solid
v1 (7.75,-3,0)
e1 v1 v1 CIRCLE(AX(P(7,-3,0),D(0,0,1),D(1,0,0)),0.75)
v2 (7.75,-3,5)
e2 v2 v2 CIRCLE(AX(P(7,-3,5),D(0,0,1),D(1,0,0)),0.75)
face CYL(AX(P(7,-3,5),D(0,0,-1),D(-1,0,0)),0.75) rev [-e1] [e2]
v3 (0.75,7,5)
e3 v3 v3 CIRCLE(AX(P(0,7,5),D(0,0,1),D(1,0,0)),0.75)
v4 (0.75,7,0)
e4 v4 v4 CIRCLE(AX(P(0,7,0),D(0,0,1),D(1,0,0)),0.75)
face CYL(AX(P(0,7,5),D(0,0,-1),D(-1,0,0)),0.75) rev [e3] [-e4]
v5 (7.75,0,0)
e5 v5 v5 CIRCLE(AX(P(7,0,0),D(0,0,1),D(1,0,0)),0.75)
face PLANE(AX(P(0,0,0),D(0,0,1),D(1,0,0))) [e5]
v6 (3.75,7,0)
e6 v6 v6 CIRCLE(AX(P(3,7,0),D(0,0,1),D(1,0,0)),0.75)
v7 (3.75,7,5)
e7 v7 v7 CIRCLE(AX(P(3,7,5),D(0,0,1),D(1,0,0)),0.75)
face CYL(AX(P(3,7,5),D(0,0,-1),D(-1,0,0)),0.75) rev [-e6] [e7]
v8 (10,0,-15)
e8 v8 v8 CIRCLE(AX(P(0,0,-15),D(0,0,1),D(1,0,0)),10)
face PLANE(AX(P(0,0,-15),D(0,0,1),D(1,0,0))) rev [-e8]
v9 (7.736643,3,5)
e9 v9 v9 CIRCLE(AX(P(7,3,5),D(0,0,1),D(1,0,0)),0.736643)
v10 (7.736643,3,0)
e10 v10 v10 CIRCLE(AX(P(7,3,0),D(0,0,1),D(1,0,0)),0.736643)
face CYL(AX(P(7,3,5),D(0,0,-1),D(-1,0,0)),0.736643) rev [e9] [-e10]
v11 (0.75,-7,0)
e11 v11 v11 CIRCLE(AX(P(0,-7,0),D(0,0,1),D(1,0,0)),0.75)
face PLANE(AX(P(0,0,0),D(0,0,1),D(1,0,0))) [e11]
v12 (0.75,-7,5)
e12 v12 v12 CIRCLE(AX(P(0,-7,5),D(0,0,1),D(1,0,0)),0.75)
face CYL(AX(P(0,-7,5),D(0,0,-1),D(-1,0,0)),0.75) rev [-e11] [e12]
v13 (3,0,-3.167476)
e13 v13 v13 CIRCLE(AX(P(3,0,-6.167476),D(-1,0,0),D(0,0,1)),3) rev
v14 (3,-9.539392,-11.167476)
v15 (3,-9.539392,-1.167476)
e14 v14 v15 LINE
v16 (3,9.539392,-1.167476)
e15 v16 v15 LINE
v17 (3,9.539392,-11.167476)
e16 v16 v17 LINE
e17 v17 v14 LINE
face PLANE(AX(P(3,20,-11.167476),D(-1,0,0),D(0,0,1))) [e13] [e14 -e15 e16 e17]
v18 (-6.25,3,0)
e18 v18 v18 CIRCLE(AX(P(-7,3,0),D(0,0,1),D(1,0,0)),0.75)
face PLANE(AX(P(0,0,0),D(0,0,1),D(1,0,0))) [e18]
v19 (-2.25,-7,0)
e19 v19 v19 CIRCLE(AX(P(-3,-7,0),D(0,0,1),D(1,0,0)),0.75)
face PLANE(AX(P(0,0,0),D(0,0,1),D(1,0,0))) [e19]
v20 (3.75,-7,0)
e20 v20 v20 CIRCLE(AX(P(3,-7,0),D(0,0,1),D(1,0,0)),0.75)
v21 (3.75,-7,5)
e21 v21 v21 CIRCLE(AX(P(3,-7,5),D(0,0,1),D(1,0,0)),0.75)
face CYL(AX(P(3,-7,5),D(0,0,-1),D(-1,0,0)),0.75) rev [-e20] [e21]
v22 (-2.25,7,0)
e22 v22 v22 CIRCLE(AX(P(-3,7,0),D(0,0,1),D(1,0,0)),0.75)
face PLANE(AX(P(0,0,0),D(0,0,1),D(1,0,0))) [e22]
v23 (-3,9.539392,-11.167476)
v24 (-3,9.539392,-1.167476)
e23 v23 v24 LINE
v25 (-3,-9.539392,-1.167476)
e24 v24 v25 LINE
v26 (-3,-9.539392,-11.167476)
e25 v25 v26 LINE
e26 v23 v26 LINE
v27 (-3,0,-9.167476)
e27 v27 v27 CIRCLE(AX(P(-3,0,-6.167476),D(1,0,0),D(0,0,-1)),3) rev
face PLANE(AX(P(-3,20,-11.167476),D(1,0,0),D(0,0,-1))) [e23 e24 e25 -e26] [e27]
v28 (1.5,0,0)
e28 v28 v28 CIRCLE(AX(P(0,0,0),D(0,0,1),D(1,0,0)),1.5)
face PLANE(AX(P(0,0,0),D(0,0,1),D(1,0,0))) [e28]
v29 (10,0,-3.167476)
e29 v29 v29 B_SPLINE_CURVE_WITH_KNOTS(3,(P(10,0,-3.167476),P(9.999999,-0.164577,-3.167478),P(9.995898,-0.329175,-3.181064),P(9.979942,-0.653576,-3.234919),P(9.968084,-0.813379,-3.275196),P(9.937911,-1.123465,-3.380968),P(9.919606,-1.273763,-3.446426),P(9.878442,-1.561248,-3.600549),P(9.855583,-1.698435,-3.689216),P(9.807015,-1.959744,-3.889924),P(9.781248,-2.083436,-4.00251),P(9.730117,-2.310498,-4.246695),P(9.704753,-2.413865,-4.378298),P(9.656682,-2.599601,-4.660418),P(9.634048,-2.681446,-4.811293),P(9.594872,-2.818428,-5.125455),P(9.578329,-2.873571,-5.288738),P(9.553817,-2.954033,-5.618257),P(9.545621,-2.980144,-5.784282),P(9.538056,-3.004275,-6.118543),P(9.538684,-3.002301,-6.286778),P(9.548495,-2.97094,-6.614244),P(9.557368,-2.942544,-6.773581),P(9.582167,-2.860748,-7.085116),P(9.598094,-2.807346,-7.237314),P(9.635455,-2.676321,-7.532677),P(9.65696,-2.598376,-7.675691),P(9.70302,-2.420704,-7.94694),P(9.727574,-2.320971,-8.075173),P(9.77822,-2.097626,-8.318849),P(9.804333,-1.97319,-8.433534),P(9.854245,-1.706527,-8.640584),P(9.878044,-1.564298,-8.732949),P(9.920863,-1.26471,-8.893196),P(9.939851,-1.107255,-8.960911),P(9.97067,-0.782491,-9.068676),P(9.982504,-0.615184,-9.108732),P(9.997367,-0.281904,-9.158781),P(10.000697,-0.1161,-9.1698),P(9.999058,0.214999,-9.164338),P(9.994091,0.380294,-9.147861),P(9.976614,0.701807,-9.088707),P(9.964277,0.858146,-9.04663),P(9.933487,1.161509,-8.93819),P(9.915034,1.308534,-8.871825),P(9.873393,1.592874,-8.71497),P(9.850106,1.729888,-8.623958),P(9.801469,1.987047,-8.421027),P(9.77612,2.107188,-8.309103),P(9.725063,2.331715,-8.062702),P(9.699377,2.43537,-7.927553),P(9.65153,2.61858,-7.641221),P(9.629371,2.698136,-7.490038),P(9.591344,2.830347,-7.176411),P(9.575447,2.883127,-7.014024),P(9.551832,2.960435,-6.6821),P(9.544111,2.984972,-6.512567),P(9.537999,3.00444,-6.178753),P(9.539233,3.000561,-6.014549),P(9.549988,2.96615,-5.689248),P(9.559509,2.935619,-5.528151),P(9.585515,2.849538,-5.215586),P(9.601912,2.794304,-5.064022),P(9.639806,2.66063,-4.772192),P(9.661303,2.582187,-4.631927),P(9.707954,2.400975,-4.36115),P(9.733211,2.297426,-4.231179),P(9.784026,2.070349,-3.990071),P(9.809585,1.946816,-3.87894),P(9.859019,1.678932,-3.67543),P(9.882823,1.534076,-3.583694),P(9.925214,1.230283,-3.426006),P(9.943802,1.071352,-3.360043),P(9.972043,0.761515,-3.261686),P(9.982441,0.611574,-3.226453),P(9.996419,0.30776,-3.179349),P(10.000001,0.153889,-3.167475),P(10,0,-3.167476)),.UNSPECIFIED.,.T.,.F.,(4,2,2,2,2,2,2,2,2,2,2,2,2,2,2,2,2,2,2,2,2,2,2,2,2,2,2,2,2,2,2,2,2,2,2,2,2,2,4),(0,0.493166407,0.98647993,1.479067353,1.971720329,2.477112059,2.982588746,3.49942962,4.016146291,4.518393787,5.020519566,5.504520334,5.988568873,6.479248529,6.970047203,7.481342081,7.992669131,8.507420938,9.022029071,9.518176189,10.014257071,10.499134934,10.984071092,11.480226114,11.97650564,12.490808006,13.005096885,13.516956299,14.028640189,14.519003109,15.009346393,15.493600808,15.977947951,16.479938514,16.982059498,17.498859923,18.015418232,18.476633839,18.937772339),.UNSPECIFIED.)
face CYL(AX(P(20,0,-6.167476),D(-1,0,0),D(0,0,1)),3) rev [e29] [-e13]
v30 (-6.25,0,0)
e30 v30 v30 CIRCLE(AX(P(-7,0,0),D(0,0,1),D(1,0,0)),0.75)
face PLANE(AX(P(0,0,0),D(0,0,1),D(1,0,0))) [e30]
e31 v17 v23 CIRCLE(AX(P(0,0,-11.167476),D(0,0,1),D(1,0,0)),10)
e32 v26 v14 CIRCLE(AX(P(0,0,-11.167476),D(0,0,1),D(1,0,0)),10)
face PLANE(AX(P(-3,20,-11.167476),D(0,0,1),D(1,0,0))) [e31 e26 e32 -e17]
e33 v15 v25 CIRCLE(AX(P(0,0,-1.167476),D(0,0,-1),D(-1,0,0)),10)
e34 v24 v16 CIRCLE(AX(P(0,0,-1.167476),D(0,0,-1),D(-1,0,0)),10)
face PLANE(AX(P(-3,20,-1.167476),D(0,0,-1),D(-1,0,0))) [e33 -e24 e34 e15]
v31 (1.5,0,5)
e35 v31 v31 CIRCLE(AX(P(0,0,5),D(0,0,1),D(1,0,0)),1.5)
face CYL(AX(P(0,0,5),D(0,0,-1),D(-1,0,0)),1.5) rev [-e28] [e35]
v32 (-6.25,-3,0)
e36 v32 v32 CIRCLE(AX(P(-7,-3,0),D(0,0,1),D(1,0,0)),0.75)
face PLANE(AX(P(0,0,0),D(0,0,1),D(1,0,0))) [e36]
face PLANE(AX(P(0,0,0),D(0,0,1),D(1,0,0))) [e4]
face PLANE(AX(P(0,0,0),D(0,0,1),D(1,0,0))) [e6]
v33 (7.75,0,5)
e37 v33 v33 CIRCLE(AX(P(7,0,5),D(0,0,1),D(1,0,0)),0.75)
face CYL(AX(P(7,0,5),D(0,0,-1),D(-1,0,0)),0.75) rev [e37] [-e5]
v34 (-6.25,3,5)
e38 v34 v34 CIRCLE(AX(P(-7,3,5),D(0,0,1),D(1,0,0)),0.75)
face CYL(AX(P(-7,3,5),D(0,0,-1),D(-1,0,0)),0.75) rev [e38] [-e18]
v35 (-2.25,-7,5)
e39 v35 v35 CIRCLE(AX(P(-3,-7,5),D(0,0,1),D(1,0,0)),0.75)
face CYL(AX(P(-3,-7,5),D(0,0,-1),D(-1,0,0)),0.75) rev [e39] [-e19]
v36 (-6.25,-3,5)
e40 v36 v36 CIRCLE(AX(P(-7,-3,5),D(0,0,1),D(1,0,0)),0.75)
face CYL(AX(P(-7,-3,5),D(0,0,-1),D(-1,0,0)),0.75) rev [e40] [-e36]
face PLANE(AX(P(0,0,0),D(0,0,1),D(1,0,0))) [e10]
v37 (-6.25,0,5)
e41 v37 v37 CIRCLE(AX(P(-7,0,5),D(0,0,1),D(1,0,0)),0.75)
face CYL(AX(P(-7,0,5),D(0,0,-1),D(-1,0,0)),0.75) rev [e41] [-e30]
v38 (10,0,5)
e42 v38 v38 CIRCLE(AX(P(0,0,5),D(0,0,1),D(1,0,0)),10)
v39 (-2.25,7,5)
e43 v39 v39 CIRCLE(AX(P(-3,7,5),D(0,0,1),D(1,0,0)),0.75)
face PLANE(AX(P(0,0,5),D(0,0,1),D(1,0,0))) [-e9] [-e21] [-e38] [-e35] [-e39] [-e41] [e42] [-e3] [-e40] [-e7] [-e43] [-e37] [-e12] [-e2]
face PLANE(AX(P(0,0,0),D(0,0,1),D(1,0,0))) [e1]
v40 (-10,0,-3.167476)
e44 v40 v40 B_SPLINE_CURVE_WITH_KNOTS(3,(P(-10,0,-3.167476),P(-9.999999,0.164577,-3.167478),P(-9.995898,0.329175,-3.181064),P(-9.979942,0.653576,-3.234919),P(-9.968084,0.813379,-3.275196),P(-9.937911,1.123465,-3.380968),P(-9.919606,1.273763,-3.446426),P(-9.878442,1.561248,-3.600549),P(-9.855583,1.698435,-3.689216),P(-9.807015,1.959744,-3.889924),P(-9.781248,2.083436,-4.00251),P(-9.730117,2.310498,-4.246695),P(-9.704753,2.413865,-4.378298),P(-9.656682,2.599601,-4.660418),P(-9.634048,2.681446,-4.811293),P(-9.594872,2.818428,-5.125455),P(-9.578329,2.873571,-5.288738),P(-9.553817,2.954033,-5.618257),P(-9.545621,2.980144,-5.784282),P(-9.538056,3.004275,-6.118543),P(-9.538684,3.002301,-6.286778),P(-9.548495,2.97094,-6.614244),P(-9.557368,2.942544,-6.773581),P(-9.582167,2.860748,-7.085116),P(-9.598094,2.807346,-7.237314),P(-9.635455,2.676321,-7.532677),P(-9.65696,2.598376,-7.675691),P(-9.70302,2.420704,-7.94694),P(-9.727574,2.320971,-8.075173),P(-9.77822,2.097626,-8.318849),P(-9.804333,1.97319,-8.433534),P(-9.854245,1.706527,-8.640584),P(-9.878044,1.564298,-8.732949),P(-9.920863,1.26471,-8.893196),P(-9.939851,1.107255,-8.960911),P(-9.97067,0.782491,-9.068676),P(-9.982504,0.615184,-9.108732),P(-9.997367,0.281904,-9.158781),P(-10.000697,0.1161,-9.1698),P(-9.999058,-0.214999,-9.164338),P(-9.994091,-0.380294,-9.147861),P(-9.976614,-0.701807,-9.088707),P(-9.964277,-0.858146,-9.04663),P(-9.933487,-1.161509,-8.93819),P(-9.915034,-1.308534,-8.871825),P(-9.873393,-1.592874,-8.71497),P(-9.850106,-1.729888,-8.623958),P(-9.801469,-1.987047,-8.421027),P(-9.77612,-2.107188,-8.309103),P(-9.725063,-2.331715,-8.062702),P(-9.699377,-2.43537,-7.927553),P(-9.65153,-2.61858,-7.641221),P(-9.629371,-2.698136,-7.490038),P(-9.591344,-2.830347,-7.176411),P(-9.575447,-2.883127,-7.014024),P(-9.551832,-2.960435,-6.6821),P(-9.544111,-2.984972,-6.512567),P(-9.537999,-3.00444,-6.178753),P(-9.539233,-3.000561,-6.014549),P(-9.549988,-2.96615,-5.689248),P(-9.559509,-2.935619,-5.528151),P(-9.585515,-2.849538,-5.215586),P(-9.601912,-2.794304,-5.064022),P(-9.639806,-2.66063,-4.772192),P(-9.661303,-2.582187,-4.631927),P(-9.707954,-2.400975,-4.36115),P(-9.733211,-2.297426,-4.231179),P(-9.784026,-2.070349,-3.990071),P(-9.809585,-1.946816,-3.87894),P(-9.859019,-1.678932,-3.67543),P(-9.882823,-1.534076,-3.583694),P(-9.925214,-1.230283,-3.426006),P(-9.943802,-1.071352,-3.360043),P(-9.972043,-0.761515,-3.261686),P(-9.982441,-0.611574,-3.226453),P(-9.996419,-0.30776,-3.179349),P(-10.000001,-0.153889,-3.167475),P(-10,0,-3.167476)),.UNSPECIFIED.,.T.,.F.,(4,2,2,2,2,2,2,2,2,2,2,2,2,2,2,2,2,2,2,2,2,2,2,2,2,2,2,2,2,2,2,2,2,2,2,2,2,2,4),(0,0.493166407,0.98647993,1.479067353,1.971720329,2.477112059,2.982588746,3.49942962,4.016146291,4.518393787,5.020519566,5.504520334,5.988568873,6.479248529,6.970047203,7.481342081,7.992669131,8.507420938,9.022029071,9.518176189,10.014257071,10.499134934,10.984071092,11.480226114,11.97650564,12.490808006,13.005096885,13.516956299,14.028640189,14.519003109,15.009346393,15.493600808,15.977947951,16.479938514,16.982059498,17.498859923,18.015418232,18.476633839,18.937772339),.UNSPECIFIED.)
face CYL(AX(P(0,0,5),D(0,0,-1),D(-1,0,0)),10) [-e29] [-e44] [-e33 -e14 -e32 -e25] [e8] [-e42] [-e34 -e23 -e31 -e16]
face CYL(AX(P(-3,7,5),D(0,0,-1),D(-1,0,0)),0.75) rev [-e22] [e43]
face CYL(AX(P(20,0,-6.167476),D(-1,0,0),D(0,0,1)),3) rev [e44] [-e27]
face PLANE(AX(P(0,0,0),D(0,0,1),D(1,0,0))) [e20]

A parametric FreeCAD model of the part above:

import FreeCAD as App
import Part
import Sketcher
Q = App.Units.Quantity


def add_polygon(sketch, points):
    """Adds a closed chain of lines whose ends are joined by coincident constraints."""
    first, n = sketch.GeometryCount, len(points)
    for a, b in zip(points, points[1:] + points[:1]):
        sketch.addGeometry(Part.LineSegment(App.Vector(*a, 0), App.Vector(*b, 0)), False)
    for i in range(n):
        sketch.addConstraint(Sketcher.Constraint("Coincident", first + i, 2, first + (i + 1) % n, 1))

doc = App.newDocument("Part")
body = doc.addObject("PartDesign::Body", "Body")

# Sketch on XY plane
sketch1 = doc.addObject("Sketcher::SketchObject", "Sketch")
body.addObject(sketch1)
sketch1.AttachmentSupport = (doc.XY_Plane, [""])
sketch1.MapMode = "FlatFace"
sketch1.addGeometry([
    Part.Circle(App.Vector(0, 0, 0), App.Vector(0, 0, 1), 10),  # 0
    Part.Circle(App.Vector(-3, -7, 0), App.Vector(0, 0, 1), 0.75),  # 1
    Part.Circle(App.Vector(-7, -3, 0), App.Vector(0, 0, 1), 0.75),  # 2
    Part.Circle(App.Vector(0, -7, 0), App.Vector(0, 0, 1), 0.75),  # 3
    Part.Circle(App.Vector(3, -7, 0), App.Vector(0, 0, 1), 0.75),  # 4
    Part.Circle(App.Vector(7, -3, 0), App.Vector(0, 0, 1), 0.75),  # 5
    Part.Circle(App.Vector(-7, 0, 0), App.Vector(0, 0, 1), 0.75),  # 6
    Part.Circle(App.Vector(-7, 3, 0), App.Vector(0, 0, 1), 0.75),  # 7
    Part.Circle(App.Vector(-3, 7, 0), App.Vector(0, 0, 1), 0.75),  # 8
    Part.Circle(App.Vector(0, 0, 0), App.Vector(0, 0, 1), 1.5),  # 9
    Part.Circle(App.Vector(7, 0, 0), App.Vector(0, 0, 1), 0.75),  # 10
    Part.Circle(App.Vector(7, 3, 0), App.Vector(0, 0, 1), 0.736643),  # 11
    Part.Circle(App.Vector(0, 7, 0), App.Vector(0, 0, 1), 0.75),  # 12
    Part.Circle(App.Vector(3, 7, 0), App.Vector(0, 0, 1), 0.75),  # 13
], False)
sketch1.addConstraint([
    Sketcher.Constraint("Coincident", 0, 3, -1, 1),
    Sketcher.Constraint("Coincident", 9, 3, -1, 1),
    Sketcher.Constraint("Equal", 1, 2),
    Sketcher.Constraint("Equal", 2, 3),
    Sketcher.Constraint("Equal", 3, 4),
    Sketcher.Constraint("Equal", 4, 5),
    Sketcher.Constraint("Equal", 5, 6),
    Sketcher.Constraint("Equal", 6, 7),
    Sketcher.Constraint("Equal", 7, 8),
    Sketcher.Constraint("Equal", 8, 10),
    Sketcher.Constraint("Equal", 10, 12),
    Sketcher.Constraint("Equal", 12, 13),
    Sketcher.Constraint("Symmetric", 5, 3, 7, 3, -1, 1),
    Sketcher.Constraint("Symmetric", 4, 3, 8, 3, -1, 1),
    Sketcher.Constraint("Symmetric", 6, 3, 10, 3, -1, 1),
    Sketcher.Constraint("Symmetric", 2, 3, 11, 3, -1, 1),
    Sketcher.Constraint("Symmetric", 3, 3, 12, 3, -1, 1),
    Sketcher.Constraint("Symmetric", 1, 3, 13, 3, -1, 1),
    Sketcher.Constraint("Symmetric", 1, 3, 4, 3, -2),
    Sketcher.Constraint("Symmetric", 2, 3, 5, 3, -2),
    Sketcher.Constraint("PointOnObject", 3, 3, -2),
    Sketcher.Constraint("PointOnObject", 6, 3, -1),
    Sketcher.Constraint("Horizontal", 1, 3, 3, 3),
    Sketcher.Constraint("Vertical", 2, 3, 6, 3),
    Sketcher.Constraint("Diameter", 0, Q("20 mm")),
    Sketcher.Constraint("Diameter", 9, Q("3 mm")),
    Sketcher.Constraint("Diameter", 1, Q("1.5 mm")),
    Sketcher.Constraint("DistanceX", 1, 3, -1, 1, Q("3 mm")),
    Sketcher.Constraint("DistanceY", 1, 3, -1, 1, Q("7 mm")),
    Sketcher.Constraint("DistanceX", 2, 3, -1, 1, Q("7 mm")),
    Sketcher.Constraint("DistanceY", 2, 3, -1, 1, Q("3 mm")),
    Sketcher.Constraint("Diameter", 11, Q("1.473286 mm")),
])
pad1 = doc.addObject("PartDesign::Pad", "Pad")
body.addObject(pad1)
pad1.Profile = sketch1
pad1.Length = 5

# Sketch on XY plane
sketch2 = doc.addObject("Sketcher::SketchObject", "Sketch001")
body.addObject(sketch2)
sketch2.AttachmentSupport = (doc.XY_Plane, [""])
sketch2.MapMode = "FlatFace"
sketch2.addGeometry(Part.Circle(App.Vector(0, 0, 0), App.Vector(0, 0, 1), 10), False)
sketch2.addConstraint([
    Sketcher.Constraint("Coincident", 0, 3, -1, 1),
    Sketcher.Constraint("Diameter", 0, Q("20 mm")),
])
pad2 = doc.addObject("PartDesign::Pad", "Pad001")
body.addObject(pad2)
pad2.Profile = sketch2
pad2.Length = 15
pad2.Reversed = True

# Sketch on XZ plane
sketch3 = doc.addObject("Sketcher::SketchObject", "Sketch002")
body.addObject(sketch3)
sketch3.AttachmentSupport = (doc.XZ_Plane, [""])
sketch3.MapMode = "FlatFace"
add_polygon(sketch3, [(-3, -11.167476), (-3, -1.167476), (3, -1.167476), (3, -11.167476)])  # lines 0-3
sketch3.addConstraint([
    Sketcher.Constraint("Vertical", 0),
    Sketcher.Constraint("Horizontal", 1),
    Sketcher.Constraint("Vertical", 2),
    Sketcher.Constraint("Horizontal", 3),
    Sketcher.Constraint("DistanceX", 1, 1, 1, 2, Q("6 mm")),
    Sketcher.Constraint("DistanceY", 0, 1, 0, 2, Q("10 mm")),
    Sketcher.Constraint("DistanceX", 0, 2, -1, 1, Q("3 mm")),
    Sketcher.Constraint("DistanceY", 0, 2, -1, 1, Q("1.167476 mm")),
])
pocket1 = doc.addObject("PartDesign::Pocket", "Pocket")
body.addObject(pocket1)
pocket1.Profile = sketch3
pocket1.Type = "ThroughAll"
pocket1.Midplane = True

# Sketch on YZ plane
sketch4 = doc.addObject("Sketcher::SketchObject", "Sketch003")
body.addObject(sketch4)
sketch4.AttachmentSupport = (doc.YZ_Plane, [""])
sketch4.MapMode = "FlatFace"
sketch4.addGeometry(Part.Circle(App.Vector(0, -6.167476, 0), App.Vector(0, 0, 1), 3), False)
sketch4.addConstraint([
    Sketcher.Constraint("PointOnObject", 0, 3, -2),
    Sketcher.Constraint("Diameter", 0, Q("6 mm")),
    Sketcher.Constraint("DistanceY", 0, 3, -1, 1, Q("6.167476 mm")),
])
pocket2 = doc.addObject("PartDesign::Pocket", "Pocket001")
body.addObject(pocket2)
pocket2.Profile = sketch4
pocket2.Type = "ThroughAll"
pocket2.Midplane = True

doc.recompute()
